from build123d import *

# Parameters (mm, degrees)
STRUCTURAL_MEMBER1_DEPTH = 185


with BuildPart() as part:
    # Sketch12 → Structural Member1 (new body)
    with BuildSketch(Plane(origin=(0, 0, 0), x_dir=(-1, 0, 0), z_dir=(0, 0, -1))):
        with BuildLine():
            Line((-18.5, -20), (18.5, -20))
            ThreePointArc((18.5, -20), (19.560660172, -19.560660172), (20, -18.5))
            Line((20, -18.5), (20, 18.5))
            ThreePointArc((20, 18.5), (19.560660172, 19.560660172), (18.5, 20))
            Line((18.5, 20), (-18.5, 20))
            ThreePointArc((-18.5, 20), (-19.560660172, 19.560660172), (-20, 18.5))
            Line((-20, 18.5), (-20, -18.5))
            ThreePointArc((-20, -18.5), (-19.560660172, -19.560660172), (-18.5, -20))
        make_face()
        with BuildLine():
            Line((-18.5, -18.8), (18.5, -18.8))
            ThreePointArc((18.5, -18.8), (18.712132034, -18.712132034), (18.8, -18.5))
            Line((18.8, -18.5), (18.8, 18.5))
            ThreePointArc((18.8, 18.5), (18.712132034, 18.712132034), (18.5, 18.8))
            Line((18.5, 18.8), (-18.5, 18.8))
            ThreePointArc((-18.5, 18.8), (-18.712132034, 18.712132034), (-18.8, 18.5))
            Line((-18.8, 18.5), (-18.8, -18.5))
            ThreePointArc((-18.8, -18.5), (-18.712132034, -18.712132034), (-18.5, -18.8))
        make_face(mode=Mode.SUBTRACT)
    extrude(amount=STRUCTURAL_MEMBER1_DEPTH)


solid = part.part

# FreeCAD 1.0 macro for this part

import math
import FreeCAD as App
import Part
import Sketcher
from FreeCAD import Vector

doc = App.newDocument("Part")
body = doc.addObject("PartDesign::Body", "Body")

sketch1 = body.newObject("Sketcher::SketchObject", "Sketch")
sketch1.AttachmentSupport = (doc.getObject("XY_Plane"), [""])
sketch1.MapMode = "FlatFace"
sketch1.addGeometry([
    Part.LineSegment(Vector(18.5, -20, 0), Vector(-18.5, -20, 0)),
    Part.ArcOfCircle(Part.Circle(Vector(-18.5, -18.5, 0), Vector(0, 0, 1), 1.5), math.radians(180), math.radians(270)),
    Part.LineSegment(Vector(-20, -18.5, 0), Vector(-20, 18.5, 0)),
    Part.ArcOfCircle(Part.Circle(Vector(-18.5, 18.5, 0), Vector(0, 0, 1), 1.5), math.radians(90), math.radians(180)),
    Part.LineSegment(Vector(-18.5, 20, 0), Vector(18.5, 20, 0)),
    Part.ArcOfCircle(Part.Circle(Vector(18.5, 18.5, 0), Vector(0, 0, 1), 1.5), math.radians(0), math.radians(90)),
    Part.LineSegment(Vector(20, 18.5, 0), Vector(20, -18.5, 0)),
    Part.ArcOfCircle(Part.Circle(Vector(18.5, -18.5, 0), Vector(0, 0, 1), 1.5), math.radians(-90), math.radians(0)),
    Part.LineSegment(Vector(-18.5, -18.8, 0), Vector(18.5, -18.8, 0)),
    Part.ArcOfCircle(Part.Circle(Vector(18.5, -18.5, 0), Vector(0, 0, 1), 0.3), math.radians(-90), math.radians(0)),
    Part.LineSegment(Vector(18.8, -18.5, 0), Vector(18.8, 18.5, 0)),
    Part.ArcOfCircle(Part.Circle(Vector(18.5, 18.5, 0), Vector(0, 0, 1), 0.3), math.radians(0), math.radians(90)),
    Part.LineSegment(Vector(18.5, 18.8, 0), Vector(-18.5, 18.8, 0)),
    Part.ArcOfCircle(Part.Circle(Vector(-18.5, 18.5, 0), Vector(0, 0, 1), 0.3), math.radians(90), math.radians(180)),
    Part.LineSegment(Vector(-18.8, 18.5, 0), Vector(-18.8, -18.5, 0)),
    Part.ArcOfCircle(Part.Circle(Vector(-18.5, -18.5, 0), Vector(0, 0, 1), 0.3), math.radians(-180), math.radians(-90)),
], False)
sketch1.addConstraint([
    Sketcher.Constraint("Tangent", 0, 2, 1, 2),
    Sketcher.Constraint("Tangent", 1, 1, 2, 1),
    Sketcher.Constraint("Tangent", 2, 2, 3, 2),
    Sketcher.Constraint("Tangent", 3, 1, 4, 1),
    Sketcher.Constraint("Tangent", 4, 2, 5, 2),
    Sketcher.Constraint("Tangent", 5, 1, 6, 1),
    Sketcher.Constraint("Tangent", 6, 2, 7, 2),
    Sketcher.Constraint("Tangent", 7, 1, 0, 1),
    Sketcher.Constraint("Tangent", 8, 2, 9, 1),
    Sketcher.Constraint("Tangent", 9, 2, 10, 1),
    Sketcher.Constraint("Tangent", 10, 2, 11, 1),
    Sketcher.Constraint("Tangent", 11, 2, 12, 1),
    Sketcher.Constraint("Tangent", 12, 2, 13, 1),
    Sketcher.Constraint("Tangent", 13, 2, 14, 1),
    Sketcher.Constraint("Tangent", 14, 2, 15, 1),
    Sketcher.Constraint("Tangent", 15, 2, 8, 1),
    Sketcher.Constraint("Horizontal", 0),
    Sketcher.Constraint("Vertical", 2),
    Sketcher.Constraint("Horizontal", 4),
    Sketcher.Constraint("Vertical", 6),
    Sketcher.Constraint("Horizontal", 8),
    Sketcher.Constraint("Vertical", 10),
    Sketcher.Constraint("Horizontal", 12),
    Sketcher.Constraint("Vertical", 14),
    Sketcher.Constraint("Coincident", 9, 3, 7, 3),
    Sketcher.Constraint("Coincident", 11, 3, 5, 3),
    Sketcher.Constraint("Coincident", 13, 3, 3, 3),
    Sketcher.Constraint("Equal", 1, 3),
    Sketcher.Constraint("Equal", 3, 5),
    Sketcher.Constraint("Equal", 5, 7),
    Sketcher.Constraint("Equal", 13, 15),
    Sketcher.Constraint("Symmetric", 1, 3, 5, 3, -1, 1),
    Sketcher.Constraint("Equal", 12, 2),
    Sketcher.Constraint("Radius", 1, 1.5),
    Sketcher.Constraint("Radius", 9, 0.3),
    Sketcher.Constraint("DistanceX", 0, 2, 0, 1, 37.0),
])
pad1 = body.newObject("PartDesign::Pad", "Pad")
pad1.Profile = sketch1
pad1.Length = 185
pad1.Reversed = True

doc.recompute()
